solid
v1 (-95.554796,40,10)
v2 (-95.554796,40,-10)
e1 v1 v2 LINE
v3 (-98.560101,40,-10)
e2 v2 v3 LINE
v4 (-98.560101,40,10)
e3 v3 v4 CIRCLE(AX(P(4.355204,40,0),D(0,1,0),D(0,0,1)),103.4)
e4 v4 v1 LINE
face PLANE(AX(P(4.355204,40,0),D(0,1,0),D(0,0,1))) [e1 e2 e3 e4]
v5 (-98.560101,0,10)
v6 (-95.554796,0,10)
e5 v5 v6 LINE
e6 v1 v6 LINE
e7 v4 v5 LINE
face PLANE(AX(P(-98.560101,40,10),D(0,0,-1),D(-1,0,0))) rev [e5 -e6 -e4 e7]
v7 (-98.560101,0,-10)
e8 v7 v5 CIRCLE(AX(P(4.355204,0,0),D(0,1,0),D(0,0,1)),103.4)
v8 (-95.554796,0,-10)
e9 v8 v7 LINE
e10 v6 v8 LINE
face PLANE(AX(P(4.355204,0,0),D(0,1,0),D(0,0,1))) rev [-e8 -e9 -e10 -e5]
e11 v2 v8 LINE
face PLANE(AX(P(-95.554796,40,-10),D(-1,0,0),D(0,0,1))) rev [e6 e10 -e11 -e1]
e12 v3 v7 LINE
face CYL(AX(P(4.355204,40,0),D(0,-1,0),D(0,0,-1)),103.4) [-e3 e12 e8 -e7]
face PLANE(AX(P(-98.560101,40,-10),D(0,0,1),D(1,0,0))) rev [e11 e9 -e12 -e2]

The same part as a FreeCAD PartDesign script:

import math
import FreeCAD as App
import Part
import Sketcher
from FreeCAD import Vector

doc = App.newDocument("Part")
params = doc.addObject("Spreadsheet::Sheet", "Params")
for row, (alias, value) in enumerate([
    ("sketch1_radius", "103.4 mm"),
    ("sketch1_height", "20 mm"),
    ("pad1_length", "40 mm"),
], start=1):
    params.set(f"A{row}", alias)
    params.set(f"B{row}", "=" + value)
    params.setAlias(f"B{row}", alias)

body = doc.addObject("PartDesign::Body", "Body")

# Sketch on XZ plane
sketch1 = doc.addObject("Sketcher::SketchObject", "Sketch")
body.addObject(sketch1)
sketch1.AttachmentSupport = (doc.XZ_Plane, [""])
sketch1.MapMode = "FlatFace"
sketch1.addGeometry([
    Part.LineSegment(Vector(-95.554796, -10, 0), Vector(-98.560101, -10, 0)),
    Part.ArcOfCircle(Part.Circle(Vector(4.355204, 0, 0), Vector(0, 0, 1), 103.4), math.radians(174.450148), math.radians(185.549852)),
    Part.LineSegment(Vector(-98.560101, 10, 0), Vector(-95.554796, 10, 0)),
    Part.LineSegment(Vector(-95.554796, 10, 0), Vector(-95.554796, -10, 0)),
], False)
sketch1.addConstraint([
    Sketcher.Constraint("Coincident", 0, 2, 1, 2),
    Sketcher.Constraint("Coincident", 1, 1, 2, 1),
    Sketcher.Constraint("Coincident", 2, 2, 3, 1),
    Sketcher.Constraint("Coincident", 3, 2, 0, 1),
    Sketcher.Constraint("Horizontal", 0),
    Sketcher.Constraint("Horizontal", 2),
    Sketcher.Constraint("Vertical", 3),
    Sketcher.Constraint("Symmetric", 0, 2, 1, 1, -1),
    Sketcher.Constraint("Radius", 1, 103.4),
    Sketcher.Constraint("DistanceY", 3, 2, 3, 1, 20.0),
    Sketcher.Constraint("DistanceX", 2, 2, 1, 3, 99.91),
    Sketcher.Constraint("DistanceX", 0, 2, -1, 1, 98.560101),
])
sketch1.setExpression("Constraints[8]", "Params.sketch1_radius")
sketch1.setExpression("Constraints[9]", "Params.sketch1_height")
pad1 = doc.addObject("PartDesign::Pad", "Pad")
body.addObject(pad1)
pad1.Profile = sketch1
pad1.setExpression("Length", "Params.pad1_length")
pad1.Reversed = True

doc.recompute()
